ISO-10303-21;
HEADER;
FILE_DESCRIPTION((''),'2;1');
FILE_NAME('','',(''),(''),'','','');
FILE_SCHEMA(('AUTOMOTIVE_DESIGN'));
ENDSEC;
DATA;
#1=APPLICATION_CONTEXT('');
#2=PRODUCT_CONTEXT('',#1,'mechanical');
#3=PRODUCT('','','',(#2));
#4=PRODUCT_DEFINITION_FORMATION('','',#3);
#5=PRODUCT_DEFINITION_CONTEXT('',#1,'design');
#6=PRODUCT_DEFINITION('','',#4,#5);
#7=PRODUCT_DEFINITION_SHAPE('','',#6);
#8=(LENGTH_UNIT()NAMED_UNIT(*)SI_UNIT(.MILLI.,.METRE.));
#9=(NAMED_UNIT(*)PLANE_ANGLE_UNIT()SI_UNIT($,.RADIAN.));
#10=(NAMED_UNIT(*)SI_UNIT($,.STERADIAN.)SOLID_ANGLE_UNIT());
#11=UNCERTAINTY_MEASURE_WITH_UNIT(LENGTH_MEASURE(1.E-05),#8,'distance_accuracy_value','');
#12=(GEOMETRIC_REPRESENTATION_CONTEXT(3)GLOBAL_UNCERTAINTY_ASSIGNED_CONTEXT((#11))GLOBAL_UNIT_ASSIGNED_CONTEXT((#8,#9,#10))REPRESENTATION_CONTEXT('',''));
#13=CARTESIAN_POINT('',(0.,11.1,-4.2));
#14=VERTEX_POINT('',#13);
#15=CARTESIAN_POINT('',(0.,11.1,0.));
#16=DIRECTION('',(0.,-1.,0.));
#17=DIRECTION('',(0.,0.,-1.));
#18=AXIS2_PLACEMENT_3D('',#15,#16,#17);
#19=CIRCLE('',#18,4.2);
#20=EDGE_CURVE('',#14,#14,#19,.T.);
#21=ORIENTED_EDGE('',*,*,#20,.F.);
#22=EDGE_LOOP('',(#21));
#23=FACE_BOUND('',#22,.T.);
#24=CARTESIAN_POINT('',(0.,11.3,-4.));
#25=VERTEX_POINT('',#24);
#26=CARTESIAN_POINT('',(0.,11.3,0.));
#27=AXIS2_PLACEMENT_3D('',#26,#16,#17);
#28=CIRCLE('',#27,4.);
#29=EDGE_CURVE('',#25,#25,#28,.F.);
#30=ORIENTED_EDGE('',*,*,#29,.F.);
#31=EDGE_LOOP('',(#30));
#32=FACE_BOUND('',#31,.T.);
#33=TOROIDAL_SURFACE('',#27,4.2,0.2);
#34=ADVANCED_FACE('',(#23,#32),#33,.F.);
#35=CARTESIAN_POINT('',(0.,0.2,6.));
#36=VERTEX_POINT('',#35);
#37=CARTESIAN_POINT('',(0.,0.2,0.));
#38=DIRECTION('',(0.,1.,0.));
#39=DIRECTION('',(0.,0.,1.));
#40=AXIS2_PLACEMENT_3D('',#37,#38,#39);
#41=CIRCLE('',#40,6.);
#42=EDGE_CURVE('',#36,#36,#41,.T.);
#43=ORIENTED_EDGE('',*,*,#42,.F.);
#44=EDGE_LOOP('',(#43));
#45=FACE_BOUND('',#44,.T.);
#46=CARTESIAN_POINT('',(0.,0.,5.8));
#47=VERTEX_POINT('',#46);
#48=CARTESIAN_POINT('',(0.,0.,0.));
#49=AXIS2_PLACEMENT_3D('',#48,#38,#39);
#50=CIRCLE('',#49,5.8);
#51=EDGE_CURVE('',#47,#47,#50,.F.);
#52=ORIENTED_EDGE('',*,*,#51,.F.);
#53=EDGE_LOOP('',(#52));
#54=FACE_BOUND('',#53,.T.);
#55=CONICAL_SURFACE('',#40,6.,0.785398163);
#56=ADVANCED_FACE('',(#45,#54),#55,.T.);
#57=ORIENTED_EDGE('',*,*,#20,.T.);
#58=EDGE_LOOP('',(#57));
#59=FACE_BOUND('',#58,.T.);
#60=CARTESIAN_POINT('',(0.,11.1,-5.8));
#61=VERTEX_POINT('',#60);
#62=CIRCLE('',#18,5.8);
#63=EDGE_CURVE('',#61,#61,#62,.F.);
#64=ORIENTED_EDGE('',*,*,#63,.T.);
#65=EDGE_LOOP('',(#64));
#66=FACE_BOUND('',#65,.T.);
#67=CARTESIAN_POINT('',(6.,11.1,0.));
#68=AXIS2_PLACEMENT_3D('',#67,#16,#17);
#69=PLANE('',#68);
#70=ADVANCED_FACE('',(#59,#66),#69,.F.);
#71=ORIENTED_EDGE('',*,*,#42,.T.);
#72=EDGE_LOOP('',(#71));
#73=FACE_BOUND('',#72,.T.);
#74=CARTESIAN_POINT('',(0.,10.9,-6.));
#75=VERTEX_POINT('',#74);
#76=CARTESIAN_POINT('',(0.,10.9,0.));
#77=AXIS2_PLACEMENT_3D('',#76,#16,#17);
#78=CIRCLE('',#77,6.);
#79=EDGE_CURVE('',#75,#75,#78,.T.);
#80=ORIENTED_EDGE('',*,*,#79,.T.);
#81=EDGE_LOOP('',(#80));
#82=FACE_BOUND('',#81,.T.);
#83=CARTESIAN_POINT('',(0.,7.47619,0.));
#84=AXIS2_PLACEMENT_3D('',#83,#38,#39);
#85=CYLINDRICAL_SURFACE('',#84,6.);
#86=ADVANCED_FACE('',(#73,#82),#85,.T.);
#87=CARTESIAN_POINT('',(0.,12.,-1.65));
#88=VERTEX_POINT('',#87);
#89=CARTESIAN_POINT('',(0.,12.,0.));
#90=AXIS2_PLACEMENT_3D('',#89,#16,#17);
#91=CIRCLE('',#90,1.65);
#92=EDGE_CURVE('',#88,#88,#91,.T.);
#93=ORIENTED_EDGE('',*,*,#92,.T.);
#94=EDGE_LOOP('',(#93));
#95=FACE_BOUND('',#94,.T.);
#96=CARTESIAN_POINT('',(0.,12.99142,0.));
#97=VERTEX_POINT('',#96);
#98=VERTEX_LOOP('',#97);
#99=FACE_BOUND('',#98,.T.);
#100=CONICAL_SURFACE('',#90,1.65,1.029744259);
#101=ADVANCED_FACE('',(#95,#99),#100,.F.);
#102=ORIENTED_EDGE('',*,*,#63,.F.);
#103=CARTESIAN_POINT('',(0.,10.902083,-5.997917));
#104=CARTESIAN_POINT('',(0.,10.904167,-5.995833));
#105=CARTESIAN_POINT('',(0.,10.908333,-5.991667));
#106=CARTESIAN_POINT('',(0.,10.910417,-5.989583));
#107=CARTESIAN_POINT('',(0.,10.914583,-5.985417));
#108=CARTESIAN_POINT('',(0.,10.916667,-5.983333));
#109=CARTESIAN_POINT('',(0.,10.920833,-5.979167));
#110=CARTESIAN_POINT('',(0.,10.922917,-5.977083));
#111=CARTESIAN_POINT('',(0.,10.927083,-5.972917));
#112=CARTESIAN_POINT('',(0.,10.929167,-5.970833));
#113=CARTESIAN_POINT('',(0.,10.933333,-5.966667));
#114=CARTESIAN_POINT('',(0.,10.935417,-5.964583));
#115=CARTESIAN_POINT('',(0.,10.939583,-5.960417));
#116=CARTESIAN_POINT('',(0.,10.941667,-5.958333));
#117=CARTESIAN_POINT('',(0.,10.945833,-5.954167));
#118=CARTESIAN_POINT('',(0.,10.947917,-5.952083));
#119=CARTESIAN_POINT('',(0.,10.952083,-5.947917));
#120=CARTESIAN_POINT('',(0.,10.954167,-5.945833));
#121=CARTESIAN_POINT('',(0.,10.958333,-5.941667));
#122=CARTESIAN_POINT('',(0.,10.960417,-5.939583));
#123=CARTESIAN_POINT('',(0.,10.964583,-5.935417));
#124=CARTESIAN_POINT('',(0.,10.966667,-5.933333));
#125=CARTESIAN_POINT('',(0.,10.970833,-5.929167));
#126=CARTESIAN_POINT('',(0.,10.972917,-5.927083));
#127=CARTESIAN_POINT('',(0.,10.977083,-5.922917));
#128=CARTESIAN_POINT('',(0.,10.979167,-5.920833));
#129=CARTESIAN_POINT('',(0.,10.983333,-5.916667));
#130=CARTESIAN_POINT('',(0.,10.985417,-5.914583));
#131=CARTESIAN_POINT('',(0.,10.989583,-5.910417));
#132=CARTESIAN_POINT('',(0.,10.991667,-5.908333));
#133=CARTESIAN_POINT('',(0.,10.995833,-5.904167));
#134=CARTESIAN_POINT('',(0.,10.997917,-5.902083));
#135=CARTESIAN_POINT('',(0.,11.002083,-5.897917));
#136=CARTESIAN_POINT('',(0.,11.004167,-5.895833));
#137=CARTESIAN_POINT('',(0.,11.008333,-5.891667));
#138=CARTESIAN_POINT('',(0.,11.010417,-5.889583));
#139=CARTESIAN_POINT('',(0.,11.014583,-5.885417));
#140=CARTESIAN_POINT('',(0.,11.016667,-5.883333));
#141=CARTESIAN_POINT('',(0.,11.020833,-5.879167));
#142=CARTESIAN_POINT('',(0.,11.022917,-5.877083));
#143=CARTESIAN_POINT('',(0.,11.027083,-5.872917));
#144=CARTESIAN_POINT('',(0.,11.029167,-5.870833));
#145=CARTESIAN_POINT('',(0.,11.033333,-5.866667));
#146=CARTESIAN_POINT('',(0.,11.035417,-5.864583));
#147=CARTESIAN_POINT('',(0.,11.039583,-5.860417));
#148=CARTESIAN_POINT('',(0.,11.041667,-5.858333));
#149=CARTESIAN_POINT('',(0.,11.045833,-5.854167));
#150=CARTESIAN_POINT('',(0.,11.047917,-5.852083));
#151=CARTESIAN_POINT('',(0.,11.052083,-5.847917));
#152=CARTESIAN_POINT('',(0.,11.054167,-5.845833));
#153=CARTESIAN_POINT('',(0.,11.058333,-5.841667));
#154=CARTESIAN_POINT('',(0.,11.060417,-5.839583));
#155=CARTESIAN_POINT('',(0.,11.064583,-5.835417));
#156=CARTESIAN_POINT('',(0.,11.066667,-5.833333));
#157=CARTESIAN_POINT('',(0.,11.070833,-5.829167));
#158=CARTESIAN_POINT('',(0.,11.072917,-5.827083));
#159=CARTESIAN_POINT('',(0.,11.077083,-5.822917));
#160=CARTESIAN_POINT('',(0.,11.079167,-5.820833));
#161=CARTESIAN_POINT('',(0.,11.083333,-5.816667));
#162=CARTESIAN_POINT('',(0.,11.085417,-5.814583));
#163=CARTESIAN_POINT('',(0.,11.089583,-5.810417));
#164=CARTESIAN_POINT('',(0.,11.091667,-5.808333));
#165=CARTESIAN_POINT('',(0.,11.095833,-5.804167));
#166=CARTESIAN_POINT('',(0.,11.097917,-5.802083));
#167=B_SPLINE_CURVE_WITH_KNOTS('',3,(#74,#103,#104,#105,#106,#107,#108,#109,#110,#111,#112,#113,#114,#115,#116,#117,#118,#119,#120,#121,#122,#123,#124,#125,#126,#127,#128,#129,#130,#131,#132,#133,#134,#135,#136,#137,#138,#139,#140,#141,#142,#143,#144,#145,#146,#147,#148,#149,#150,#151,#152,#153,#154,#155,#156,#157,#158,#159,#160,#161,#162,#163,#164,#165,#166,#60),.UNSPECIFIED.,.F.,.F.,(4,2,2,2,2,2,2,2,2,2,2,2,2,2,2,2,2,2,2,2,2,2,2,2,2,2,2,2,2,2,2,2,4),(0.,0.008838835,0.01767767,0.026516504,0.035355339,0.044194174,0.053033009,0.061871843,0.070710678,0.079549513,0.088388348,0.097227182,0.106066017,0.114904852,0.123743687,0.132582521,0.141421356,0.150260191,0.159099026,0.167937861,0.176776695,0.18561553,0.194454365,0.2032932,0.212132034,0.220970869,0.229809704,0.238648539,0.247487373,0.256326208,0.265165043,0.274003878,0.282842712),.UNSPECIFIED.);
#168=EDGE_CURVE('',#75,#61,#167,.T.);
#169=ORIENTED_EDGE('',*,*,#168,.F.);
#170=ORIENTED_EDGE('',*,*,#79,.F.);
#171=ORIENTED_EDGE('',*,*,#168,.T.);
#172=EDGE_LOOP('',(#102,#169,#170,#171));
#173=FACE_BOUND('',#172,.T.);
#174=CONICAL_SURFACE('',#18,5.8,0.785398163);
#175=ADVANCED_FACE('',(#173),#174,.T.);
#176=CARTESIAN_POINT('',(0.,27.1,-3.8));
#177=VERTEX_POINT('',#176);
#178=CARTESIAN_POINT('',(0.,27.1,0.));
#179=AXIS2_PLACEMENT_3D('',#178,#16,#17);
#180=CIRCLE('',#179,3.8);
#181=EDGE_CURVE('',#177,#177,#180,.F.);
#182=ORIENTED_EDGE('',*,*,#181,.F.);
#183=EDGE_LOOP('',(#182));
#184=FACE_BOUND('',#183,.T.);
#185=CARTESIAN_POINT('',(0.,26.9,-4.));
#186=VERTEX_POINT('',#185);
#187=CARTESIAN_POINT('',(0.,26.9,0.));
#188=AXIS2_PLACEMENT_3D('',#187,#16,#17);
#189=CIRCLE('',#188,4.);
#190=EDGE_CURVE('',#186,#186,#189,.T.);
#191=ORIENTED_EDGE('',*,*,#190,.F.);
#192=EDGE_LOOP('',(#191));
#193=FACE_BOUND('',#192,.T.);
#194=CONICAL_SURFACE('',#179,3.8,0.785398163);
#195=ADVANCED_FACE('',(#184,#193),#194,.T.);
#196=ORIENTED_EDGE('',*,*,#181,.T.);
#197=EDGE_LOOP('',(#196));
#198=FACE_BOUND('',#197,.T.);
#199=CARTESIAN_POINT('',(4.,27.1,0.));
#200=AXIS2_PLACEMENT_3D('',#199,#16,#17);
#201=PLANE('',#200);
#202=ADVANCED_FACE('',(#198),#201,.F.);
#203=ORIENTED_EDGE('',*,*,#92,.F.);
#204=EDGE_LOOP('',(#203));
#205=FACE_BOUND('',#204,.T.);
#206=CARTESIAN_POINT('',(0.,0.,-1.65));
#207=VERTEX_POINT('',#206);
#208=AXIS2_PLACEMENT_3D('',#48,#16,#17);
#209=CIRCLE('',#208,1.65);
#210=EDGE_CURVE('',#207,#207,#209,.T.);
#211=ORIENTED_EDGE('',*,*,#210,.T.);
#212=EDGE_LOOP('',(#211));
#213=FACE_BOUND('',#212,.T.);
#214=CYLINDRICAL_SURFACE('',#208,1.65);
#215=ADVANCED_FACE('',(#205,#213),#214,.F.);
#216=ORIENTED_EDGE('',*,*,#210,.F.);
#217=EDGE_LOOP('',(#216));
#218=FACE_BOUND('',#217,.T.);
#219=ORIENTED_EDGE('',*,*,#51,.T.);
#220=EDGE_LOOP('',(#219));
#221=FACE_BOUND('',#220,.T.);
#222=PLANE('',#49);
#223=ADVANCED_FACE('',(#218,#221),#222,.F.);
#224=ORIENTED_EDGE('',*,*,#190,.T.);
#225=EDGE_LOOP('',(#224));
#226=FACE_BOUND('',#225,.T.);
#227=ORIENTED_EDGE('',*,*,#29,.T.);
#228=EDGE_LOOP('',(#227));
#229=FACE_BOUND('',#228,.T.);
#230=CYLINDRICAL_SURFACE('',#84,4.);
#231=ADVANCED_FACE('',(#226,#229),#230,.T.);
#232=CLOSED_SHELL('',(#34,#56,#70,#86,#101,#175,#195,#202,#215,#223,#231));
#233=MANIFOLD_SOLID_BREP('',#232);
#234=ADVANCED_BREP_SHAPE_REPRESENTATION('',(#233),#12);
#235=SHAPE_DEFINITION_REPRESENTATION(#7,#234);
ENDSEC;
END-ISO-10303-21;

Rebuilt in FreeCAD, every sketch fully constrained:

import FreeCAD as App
import Part
import Sketcher
Q = App.Units.Quantity


def edges_at(feature, points):
    """Names of the edges that pass closest to the given points."""
    edges = feature.Shape.Edges
    near = lambda p: min(range(len(edges)), key=lambda i: edges[i].distToShape(Part.Vertex(*p))[0])
    return sorted({f"Edge{near(p) + 1}" for p in points})

doc = App.newDocument("Part")
params = doc.addObject("Spreadsheet::Sheet", "Params")
for row, (alias, value) in enumerate([
    ("sketch1_width", "6 mm"),
    ("sketch1_width2", "2 mm"),
    ("sketch1_height", "16 mm"),
    ("sketch1_height2", "11.1 mm"),
    ("revolution_angle", "360 deg"),
    ("sketch2_diameter", "3.3 mm"),
    ("hole_diameter", "3.3 mm"),
    ("hole_depth", "12 mm"),
    ("fillet_radius", "0.2 mm"),
    ("chamfer_size", "0.2 mm"),
], start=1):
    params.set(f"A{row}", alias)
    params.set(f"B{row}", "=" + value)
    params.setAlias(f"B{row}", alias)

body = doc.addObject("PartDesign::Body", "Body")

sketch1 = body.newObject("Sketcher::SketchObject", "Sketch")
sketch1.AttachmentSupport = (doc.getObject("XY_Plane"), [""])
sketch1.MapMode = "FlatFace"
sketch1.addGeometry(Part.LineSegment(App.Vector(0, 0, 0), App.Vector(6, 0, 0)), False)
sketch1.addGeometry(Part.LineSegment(App.Vector(6, 0, 0), App.Vector(6, 11.1, 0)), False)
sketch1.addGeometry(Part.LineSegment(App.Vector(6, 11.1, 0), App.Vector(4, 11.1, 0)), False)
sketch1.addGeometry(Part.LineSegment(App.Vector(4, 11.1, 0), App.Vector(4, 27.1, 0)), False)
sketch1.addGeometry(Part.LineSegment(App.Vector(4, 27.1, 0), App.Vector(0, 27.1, 0)), False)
sketch1.addGeometry(Part.LineSegment(App.Vector(0, 27.1, 0), App.Vector(0, 0, 0)), False)
sketch1.addConstraint(Sketcher.Constraint("Coincident", 0, 2, 1, 1))
sketch1.addConstraint(Sketcher.Constraint("Coincident", 1, 2, 2, 1))
sketch1.addConstraint(Sketcher.Constraint("Coincident", 2, 2, 3, 1))
sketch1.addConstraint(Sketcher.Constraint("Coincident", 3, 2, 4, 1))
sketch1.addConstraint(Sketcher.Constraint("Coincident", 4, 2, 5, 1))
sketch1.addConstraint(Sketcher.Constraint("Coincident", 5, 2, 0, 1))
sketch1.addConstraint(Sketcher.Constraint("Horizontal", 0))
sketch1.addConstraint(Sketcher.Constraint("Vertical", 1))
sketch1.addConstraint(Sketcher.Constraint("Horizontal", 2))
sketch1.addConstraint(Sketcher.Constraint("Vertical", 3))
sketch1.addConstraint(Sketcher.Constraint("Horizontal", 4))
sketch1.addConstraint(Sketcher.Constraint("Vertical", 5))
sketch1.addConstraint(Sketcher.Constraint("Coincident", 5, 2, -1, 1))
sketch1.addConstraint(Sketcher.Constraint("DistanceX", 0, 1, 0, 2, Q("6 mm")))
sketch1.addConstraint(Sketcher.Constraint("DistanceX", 2, 2, 2, 1, Q("2 mm")))
sketch1.addConstraint(Sketcher.Constraint("DistanceY", 3, 1, 3, 2, Q("16 mm")))
sketch1.addConstraint(Sketcher.Constraint("DistanceY", 1, 1, 1, 2, Q("11.1 mm")))
sketch1.setExpression("Constraints[13]", "Params.sketch1_width")
sketch1.setExpression("Constraints[14]", "Params.sketch1_width2")
sketch1.setExpression("Constraints[15]", "Params.sketch1_height")
sketch1.setExpression("Constraints[16]", "Params.sketch1_height2")
revolution = body.newObject("PartDesign::Revolution", "Revolution")
revolution.Profile = sketch1
revolution.ReferenceAxis = (sketch1, ["V_Axis"])
revolution.setExpression("Angle", "Params.revolution_angle")

sketch2 = body.newObject("Sketcher::SketchObject", "Sketch001")
sketch2.AttachmentSupport = (doc.getObject("XZ_Plane"), [""])
sketch2.MapMode = "FlatFace"
sketch2.addGeometry(Part.Circle(App.Vector(0, 0, 0), App.Vector(0, 0, 1), 1.6), False)
sketch2.addConstraint(Sketcher.Constraint("Coincident", 0, 3, -1, 1))
sketch2.addConstraint(Sketcher.Constraint("Diameter", 0, Q("3.3 mm")))
sketch2.setExpression("Constraints[1]", "Params.sketch2_diameter")
doc.recompute()
hole = body.newObject("PartDesign::Hole", "Hole")
hole.Profile = sketch2
hole.ThreadType = "None"
hole.setExpression("Diameter", "Params.hole_diameter")
hole.DepthType = "Dimension"
hole.setExpression("Depth", "Params.hole_depth")
hole.DrillPoint = "Angled"
hole.DrillPointAngle = 118
doc.recompute()

fillet = body.newObject("PartDesign::Fillet", "Fillet")
fillet.Base = (hole, edges_at(hole, [(0, 11.1, -4)]))
fillet.setExpression("Radius", "Params.fillet_radius")
doc.recompute()

chamfer = body.newObject("PartDesign::Chamfer", "Chamfer")
chamfer.Base = (fillet, edges_at(fillet, [(0, 27.1, -4), (0, 11.1, -6), (0, 0, -6)]))
chamfer.setExpression("Size", "Params.chamfer_size")

doc.recompute()
